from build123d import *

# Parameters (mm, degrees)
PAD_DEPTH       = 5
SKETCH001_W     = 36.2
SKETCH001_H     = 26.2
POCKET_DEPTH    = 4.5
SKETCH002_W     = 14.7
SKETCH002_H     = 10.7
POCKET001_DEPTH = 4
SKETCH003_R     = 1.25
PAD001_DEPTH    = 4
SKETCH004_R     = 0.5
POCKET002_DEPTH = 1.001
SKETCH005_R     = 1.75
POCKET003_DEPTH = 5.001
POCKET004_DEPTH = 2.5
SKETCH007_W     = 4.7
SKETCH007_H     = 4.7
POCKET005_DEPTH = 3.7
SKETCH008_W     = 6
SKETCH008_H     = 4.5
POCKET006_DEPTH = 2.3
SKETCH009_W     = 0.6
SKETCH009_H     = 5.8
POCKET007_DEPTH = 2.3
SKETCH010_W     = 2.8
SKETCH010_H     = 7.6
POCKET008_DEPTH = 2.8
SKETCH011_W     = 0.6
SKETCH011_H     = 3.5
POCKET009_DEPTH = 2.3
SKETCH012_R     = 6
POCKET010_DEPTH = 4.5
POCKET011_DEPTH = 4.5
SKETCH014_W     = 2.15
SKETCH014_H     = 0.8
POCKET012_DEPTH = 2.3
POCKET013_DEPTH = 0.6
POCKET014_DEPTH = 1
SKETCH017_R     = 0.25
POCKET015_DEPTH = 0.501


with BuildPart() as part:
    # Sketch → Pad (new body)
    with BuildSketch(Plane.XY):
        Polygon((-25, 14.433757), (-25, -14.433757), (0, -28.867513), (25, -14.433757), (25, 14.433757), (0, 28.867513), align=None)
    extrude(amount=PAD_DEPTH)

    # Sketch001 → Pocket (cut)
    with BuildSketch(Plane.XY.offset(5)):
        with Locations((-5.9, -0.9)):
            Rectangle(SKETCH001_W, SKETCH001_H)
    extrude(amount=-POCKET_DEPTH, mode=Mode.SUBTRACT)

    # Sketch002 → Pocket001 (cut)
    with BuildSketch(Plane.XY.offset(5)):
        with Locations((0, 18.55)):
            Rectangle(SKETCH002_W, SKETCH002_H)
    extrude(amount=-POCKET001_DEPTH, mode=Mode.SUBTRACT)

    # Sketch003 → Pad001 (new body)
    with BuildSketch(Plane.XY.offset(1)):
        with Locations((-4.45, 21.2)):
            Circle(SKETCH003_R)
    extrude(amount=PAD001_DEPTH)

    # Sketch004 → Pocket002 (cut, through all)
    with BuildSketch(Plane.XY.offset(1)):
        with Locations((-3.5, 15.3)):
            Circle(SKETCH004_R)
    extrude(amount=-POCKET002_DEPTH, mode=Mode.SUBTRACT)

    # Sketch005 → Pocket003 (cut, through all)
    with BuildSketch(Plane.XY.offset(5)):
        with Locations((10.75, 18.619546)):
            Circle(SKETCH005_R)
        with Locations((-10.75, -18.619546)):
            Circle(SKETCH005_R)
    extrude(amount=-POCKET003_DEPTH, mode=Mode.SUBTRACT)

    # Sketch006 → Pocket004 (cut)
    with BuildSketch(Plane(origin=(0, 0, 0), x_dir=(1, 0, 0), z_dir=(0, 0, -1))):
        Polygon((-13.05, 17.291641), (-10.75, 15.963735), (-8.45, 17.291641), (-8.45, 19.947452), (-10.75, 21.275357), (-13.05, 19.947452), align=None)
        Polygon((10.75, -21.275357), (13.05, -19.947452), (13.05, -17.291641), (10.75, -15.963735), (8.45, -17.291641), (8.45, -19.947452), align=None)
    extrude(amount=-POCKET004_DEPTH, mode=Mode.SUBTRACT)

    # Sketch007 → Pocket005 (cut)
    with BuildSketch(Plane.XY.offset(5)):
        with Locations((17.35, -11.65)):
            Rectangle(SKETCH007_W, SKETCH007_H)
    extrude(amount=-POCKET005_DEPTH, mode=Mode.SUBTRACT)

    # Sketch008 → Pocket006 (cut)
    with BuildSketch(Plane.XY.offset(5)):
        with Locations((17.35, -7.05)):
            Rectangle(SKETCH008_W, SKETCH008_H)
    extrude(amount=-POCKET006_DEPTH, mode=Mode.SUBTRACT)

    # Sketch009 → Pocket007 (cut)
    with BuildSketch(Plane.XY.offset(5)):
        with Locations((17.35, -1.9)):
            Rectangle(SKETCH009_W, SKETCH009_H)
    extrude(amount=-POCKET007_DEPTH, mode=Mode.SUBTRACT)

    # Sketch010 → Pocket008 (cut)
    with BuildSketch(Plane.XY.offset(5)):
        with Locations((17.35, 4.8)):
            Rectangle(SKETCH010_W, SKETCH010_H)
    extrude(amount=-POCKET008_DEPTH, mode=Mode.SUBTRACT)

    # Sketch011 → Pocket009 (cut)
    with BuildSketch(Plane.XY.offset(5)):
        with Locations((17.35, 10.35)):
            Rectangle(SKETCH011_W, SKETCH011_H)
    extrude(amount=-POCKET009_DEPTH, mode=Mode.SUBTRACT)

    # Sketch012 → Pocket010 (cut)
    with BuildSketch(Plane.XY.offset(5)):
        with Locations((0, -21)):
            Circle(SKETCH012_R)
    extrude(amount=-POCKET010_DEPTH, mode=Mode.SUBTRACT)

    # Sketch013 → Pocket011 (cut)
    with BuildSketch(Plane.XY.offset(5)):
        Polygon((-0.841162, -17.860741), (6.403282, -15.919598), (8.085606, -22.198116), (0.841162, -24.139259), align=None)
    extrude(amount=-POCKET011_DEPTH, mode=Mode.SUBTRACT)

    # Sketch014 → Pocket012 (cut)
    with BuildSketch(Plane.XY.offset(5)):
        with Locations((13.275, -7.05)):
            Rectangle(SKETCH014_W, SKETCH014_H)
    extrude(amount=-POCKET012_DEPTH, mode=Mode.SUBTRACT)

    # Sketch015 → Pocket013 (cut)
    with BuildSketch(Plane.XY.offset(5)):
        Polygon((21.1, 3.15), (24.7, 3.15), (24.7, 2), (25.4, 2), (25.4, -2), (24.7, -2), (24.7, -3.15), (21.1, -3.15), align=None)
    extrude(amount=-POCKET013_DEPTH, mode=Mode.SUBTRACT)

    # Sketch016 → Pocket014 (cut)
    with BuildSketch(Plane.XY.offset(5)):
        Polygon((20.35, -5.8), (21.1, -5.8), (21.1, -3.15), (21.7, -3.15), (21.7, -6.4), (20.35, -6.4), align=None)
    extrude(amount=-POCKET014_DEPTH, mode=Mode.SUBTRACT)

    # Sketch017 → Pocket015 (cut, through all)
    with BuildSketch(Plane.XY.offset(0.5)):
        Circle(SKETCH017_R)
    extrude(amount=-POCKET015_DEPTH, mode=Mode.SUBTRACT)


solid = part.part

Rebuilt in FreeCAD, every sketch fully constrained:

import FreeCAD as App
import Part
import Sketcher

V = App.Vector
Q = App.Units.Quantity


def add_polygon(sketch, points):
    """Adds a closed chain of lines whose ends are joined by coincident constraints."""
    first, n = sketch.GeometryCount, len(points)
    for a, b in zip(points, points[1:] + points[:1]):
        sketch.addGeometry(Part.LineSegment(App.Vector(*a, 0), App.Vector(*b, 0)), False)
    for i in range(n):
        sketch.addConstraint(Sketcher.Constraint("Coincident", first + i, 2, first + (i + 1) % n, 1))

doc = App.newDocument("Part")
body = doc.addObject("PartDesign::Body", "Body")

# Sketch on XY plane
sketch1 = body.newObject("Sketcher::SketchObject", "Sketch")
sketch1.AttachmentSupport = (doc.getObject("XY_Plane"), [""])
sketch1.MapMode = "FlatFace"
add_polygon(sketch1, [(-25, 14), (-25, -14), (0, -29), (25, -14), (25, 14), (0, 29)])  # lines 0-5
sketch1.addConstraint([
    Sketcher.Constraint("Vertical", 0),
    Sketcher.Constraint("Vertical", 3),
    Sketcher.Constraint("Symmetric", 0, 2, 3, 2, -1, 1),
    Sketcher.Constraint("Symmetric", 1, 2, 4, 2, -1, 1),
    Sketcher.Constraint("PointOnObject", 1, 2, -2),
    Sketcher.Constraint("Parallel", 2, 5),
    Sketcher.Constraint("Horizontal", 0, 2, 2, 2),
    Sketcher.Constraint("Angle", 1, Q("-29.999999 deg")),
    Sketcher.Constraint("DistanceX", 0, 2, -1, 1, Q("25 mm")),
    Sketcher.Constraint("DistanceY", 0, 2, 0, 1, Q("28.867514 mm")),
])
pad1 = body.newObject("PartDesign::Pad", "Pad")
pad1.Profile = sketch1
pad1.Length = 5

# Sketch on XY plane
sketch2 = body.newObject("Sketcher::SketchObject", "Sketch001")
sketch2.AttachmentSupport = (doc.getObject("XY_Plane"), [""])
sketch2.MapMode = "FlatFace"
sketch2.AttachmentOffset = App.Placement(V(0, 0, 5), App.Rotation())
add_polygon(sketch2, [(-24, 12), (-24, -14), (12, -14), (12, 12)])  # lines 0-3
sketch2.addConstraint([
    Sketcher.Constraint("Vertical", 0),
    Sketcher.Constraint("Horizontal", 1),
    Sketcher.Constraint("Vertical", 2),
    Sketcher.Constraint("Horizontal", 3),
    Sketcher.Constraint("DistanceX", 1, 1, 1, 2, Q("36.2 mm")),
    Sketcher.Constraint("DistanceY", 0, 2, 0, 1, Q("26.2 mm")),
    Sketcher.Constraint("DistanceX", 0, 2, -1, 1, Q("24 mm")),
    Sketcher.Constraint("DistanceY", 0, 2, -1, 1, Q("14 mm")),
])
pocket1 = body.newObject("PartDesign::Pocket", "Pocket")
pocket1.Profile = sketch2
pocket1.Length = 4.5

# Sketch on XY plane
sketch3 = body.newObject("Sketcher::SketchObject", "Sketch002")
sketch3.AttachmentSupport = (doc.getObject("XY_Plane"), [""])
sketch3.MapMode = "FlatFace"
sketch3.AttachmentOffset = App.Placement(V(0, 0, 5), App.Rotation())
add_polygon(sketch3, [(-7, 24), (-7, 13), (7, 13), (7, 24)])  # lines 0-3
sketch3.addConstraint([
    Sketcher.Constraint("Vertical", 0),
    Sketcher.Constraint("Horizontal", 1),
    Sketcher.Constraint("Vertical", 2),
    Sketcher.Constraint("Horizontal", 3),
    Sketcher.Constraint("DistanceX", 1, 1, 1, 2, Q("14.7 mm")),
    Sketcher.Constraint("DistanceY", 0, 2, 0, 1, Q("10.7 mm")),
    Sketcher.Constraint("DistanceY", -1, 1, 0, 2, Q("13.2 mm")),
    Sketcher.Constraint("DistanceX", 0, 2, -1, 1, Q("7.35 mm")),
])
pocket2 = body.newObject("PartDesign::Pocket", "Pocket001")
pocket2.Profile = sketch3
pocket2.Length = 4

# Sketch on XY plane
sketch4 = body.newObject("Sketcher::SketchObject", "Sketch003")
sketch4.AttachmentSupport = (doc.getObject("XY_Plane"), [""])
sketch4.MapMode = "FlatFace"
sketch4.AttachmentOffset = App.Placement(V(0, 0, 1), App.Rotation())
sketch4.addGeometry(Part.Circle(V(-4.5, 21.2, 0), V(0, 0, 1), 1.2), False)
sketch4.addConstraint([
    Sketcher.Constraint("Diameter", 0, Q("2.5 mm")),
    Sketcher.Constraint("DistanceY", -1, 1, 0, 3, Q("21.2 mm")),
    Sketcher.Constraint("DistanceX", 0, 3, -1, 1, Q("4.45 mm")),
])
pad2 = body.newObject("PartDesign::Pad", "Pad001")
pad2.Profile = sketch4
pad2.Length = 4

# Sketch on XY plane
sketch5 = body.newObject("Sketcher::SketchObject", "Sketch004")
sketch5.AttachmentSupport = (doc.getObject("XY_Plane"), [""])
sketch5.MapMode = "FlatFace"
sketch5.AttachmentOffset = App.Placement(V(0, 0, 1), App.Rotation())
sketch5.addGeometry(Part.Circle(V(-3.5, 15.3, 0), V(0, 0, 1), 0.5), False)
sketch5.addConstraint([
    Sketcher.Constraint("Diameter", 0, Q("1 mm")),
    Sketcher.Constraint("DistanceX", 0, 3, -1, 1, Q("3.5 mm")),
    Sketcher.Constraint("DistanceY", -1, 1, 0, 3, Q("15.3 mm")),
])
pocket3 = body.newObject("PartDesign::Pocket", "Pocket002")
pocket3.Profile = sketch5
pocket3.Type = "ThroughAll"

# Sketch on XY plane
sketch6 = body.newObject("Sketcher::SketchObject", "Sketch005")
sketch6.AttachmentSupport = (doc.getObject("XY_Plane"), [""])
sketch6.MapMode = "FlatFace"
sketch6.AttachmentOffset = App.Placement(V(0, 0, 5), App.Rotation())
sketch6.addGeometry([
    Part.Circle(V(10.8, 18.6, 0), V(0, 0, 1), 1.8),
    Part.Circle(V(-10.8, -18.6, 0), V(0, 0, 1), 1.8),
], False)
sketch6.addConstraint([
    Sketcher.Constraint("Equal", 0, 1),
    Sketcher.Constraint("Symmetric", 0, 3, 1, 3, -1, 1),
    Sketcher.Constraint("Diameter", 0, Q("3.5 mm")),
    Sketcher.Constraint("DistanceX", 1, 3, 0, 3, Q("21.5 mm")),
    Sketcher.Constraint("DistanceY", -1, 1, 0, 3, Q("18.619546 mm")),
])
pocket4 = body.newObject("PartDesign::Pocket", "Pocket003")
pocket4.Profile = sketch6
pocket4.Type = "ThroughAll"

# Sketch on XY plane
sketch7 = body.newObject("Sketcher::SketchObject", "Sketch006")
sketch7.AttachmentSupport = (doc.getObject("XY_Plane"), [""])
sketch7.MapMode = "FlatFace"
add_polygon(sketch7, [(-13.1, -17.3), (-10.8, -16), (-8.4, -17.3), (-8.4, -19.9), (-10.8, -21.3), (-13.1, -19.9)])  # lines 0-5
add_polygon(sketch7, [(10.8, 21.3), (13.1, 19.9), (13.1, 17.3), (10.8, 16), (8.4, 17.3), (8.4, 19.9)])  # lines 6-11
sketch7.addConstraint([
    Sketcher.Constraint("Vertical", 2),
    Sketcher.Constraint("Vertical", 5),
    Sketcher.Constraint("Vertical", 7),
    Sketcher.Constraint("Vertical", 10),
    Sketcher.Constraint("Symmetric", 4, 2, 6, 2, -1, 1),
    Sketcher.Constraint("Symmetric", 0, 2, 8, 2, -1, 1),
    Sketcher.Constraint("Symmetric", 1, 2, 9, 2, -1, 1),
    Sketcher.Constraint("Symmetric", 3, 2, 11, 2, -1, 1),
    Sketcher.Constraint("Parallel", 0, 3),
    Sketcher.Constraint("Parallel", 1, 4),
    Sketcher.Constraint("Parallel", 3, 8),
    Sketcher.Constraint("Parallel", 8, 11),
    Sketcher.Constraint("Horizontal", 2, 2, 4, 2),
    Sketcher.Constraint("Horizontal", 1, 2, 5, 2),
    Sketcher.Constraint("Vertical", 0, 2, 3, 2),
    Sketcher.Constraint("Angle", 0, Q("30.000007 deg")),
    Sketcher.Constraint("DistanceX", 0, 2, 1, 2, Q("2.3 mm")),
    Sketcher.Constraint("DistanceX", 1, 2, 6, 2, Q("21.5 mm")),
    Sketcher.Constraint("DistanceY", 2, 2, 2, 1, Q("2.655811 mm")),
    Sketcher.Constraint("DistanceY", 1, 2, -1, 1, Q("17.291641 mm")),
])
pocket5 = body.newObject("PartDesign::Pocket", "Pocket004")
pocket5.Profile = sketch7
pocket5.Length = 2.5
pocket5.Reversed = True

# Sketch on XY plane
sketch8 = body.newObject("Sketcher::SketchObject", "Sketch007")
sketch8.AttachmentSupport = (doc.getObject("XY_Plane"), [""])
sketch8.MapMode = "FlatFace"
sketch8.AttachmentOffset = App.Placement(V(0, 0, 5), App.Rotation())
add_polygon(sketch8, [(15, -9.3), (15, -14), (19.7, -14), (19.7, -9.3)])  # lines 0-3
sketch8.addConstraint([
    Sketcher.Constraint("Vertical", 0),
    Sketcher.Constraint("Horizontal", 1),
    Sketcher.Constraint("Vertical", 2),
    Sketcher.Constraint("Horizontal", 3),
    Sketcher.Constraint("Equal", 3, 0),
    Sketcher.Constraint("DistanceX", 1, 1, 1, 2, Q("4.7 mm")),
    Sketcher.Constraint("DistanceX", -1, 1, 0, 2, Q("15 mm")),
    Sketcher.Constraint("DistanceY", 0, 2, -1, 1, Q("14 mm")),
])
pocket6 = body.newObject("PartDesign::Pocket", "Pocket005")
pocket6.Profile = sketch8
pocket6.Length = 3.7

# Sketch on XY plane
sketch9 = body.newObject("Sketcher::SketchObject", "Sketch008")
sketch9.AttachmentSupport = (doc.getObject("XY_Plane"), [""])
sketch9.MapMode = "FlatFace"
sketch9.AttachmentOffset = App.Placement(V(0, 0, 5), App.Rotation())
add_polygon(sketch9, [(14.3, -4.8), (14.3, -9.3), (20.4, -9.3), (20.4, -4.8)])  # lines 0-3
sketch9.addConstraint([
    Sketcher.Constraint("Vertical", 0),
    Sketcher.Constraint("Horizontal", 1),
    Sketcher.Constraint("Vertical", 2),
    Sketcher.Constraint("Horizontal", 3),
    Sketcher.Constraint("DistanceX", 1, 1, 1, 2, Q("6 mm")),
    Sketcher.Constraint("DistanceY", 0, 2, 0, 1, Q("4.5 mm")),
    Sketcher.Constraint("DistanceY", 0, 2, -1, 1, Q("9.3 mm")),
    Sketcher.Constraint("DistanceX", -1, 1, 0, 2, Q("14.35 mm")),
])
pocket7 = body.newObject("PartDesign::Pocket", "Pocket006")
pocket7.Profile = sketch9
pocket7.Length = 2.3

# Sketch on XY plane
sketch10 = body.newObject("Sketcher::SketchObject", "Sketch009")
sketch10.AttachmentSupport = (doc.getObject("XY_Plane"), [""])
sketch10.MapMode = "FlatFace"
sketch10.AttachmentOffset = App.Placement(V(0, 0, 5), App.Rotation())
add_polygon(sketch10, [(17.1, 1), (17.1, -4.8), (17.6, -4.8), (17.6, 1)])  # lines 0-3
sketch10.addConstraint([
    Sketcher.Constraint("Vertical", 0),
    Sketcher.Constraint("Horizontal", 1),
    Sketcher.Constraint("Vertical", 2),
    Sketcher.Constraint("Horizontal", 3),
    Sketcher.Constraint("DistanceX", 1, 1, 1, 2, Q("0.6 mm")),
    Sketcher.Constraint("DistanceY", 0, 2, 0, 1, Q("5.8 mm")),
    Sketcher.Constraint("DistanceY", -1, 1, 2, 2, Q("1 mm")),
    Sketcher.Constraint("DistanceX", -1, 1, 0, 2, Q("17.05 mm")),
])
pocket8 = body.newObject("PartDesign::Pocket", "Pocket007")
pocket8.Profile = sketch10
pocket8.Length = 2.3

# Sketch on XY plane
sketch11 = body.newObject("Sketcher::SketchObject", "Sketch010")
sketch11.AttachmentSupport = (doc.getObject("XY_Plane"), [""])
sketch11.MapMode = "FlatFace"
sketch11.AttachmentOffset = App.Placement(V(0, 0, 5), App.Rotation())
add_polygon(sketch11, [(15.9, 8.6), (15.9, 1), (18.8, 1), (18.8, 8.6)])  # lines 0-3
sketch11.addConstraint([
    Sketcher.Constraint("Vertical", 0),
    Sketcher.Constraint("Horizontal", 1),
    Sketcher.Constraint("Vertical", 2),
    Sketcher.Constraint("Horizontal", 3),
    Sketcher.Constraint("DistanceX", 1, 1, 1, 2, Q("2.8 mm")),
    Sketcher.Constraint("DistanceY", 0, 2, 0, 1, Q("7.6 mm")),
    Sketcher.Constraint("DistanceY", -1, 1, 0, 2, Q("1 mm")),
    Sketcher.Constraint("DistanceX", -1, 1, 0, 2, Q("15.95 mm")),
])
pocket9 = body.newObject("PartDesign::Pocket", "Pocket008")
pocket9.Profile = sketch11
pocket9.Length = 2.8

# Sketch on XY plane
sketch12 = body.newObject("Sketcher::SketchObject", "Sketch011")
sketch12.AttachmentSupport = (doc.getObject("XY_Plane"), [""])
sketch12.MapMode = "FlatFace"
sketch12.AttachmentOffset = App.Placement(V(0, 0, 5), App.Rotation())
add_polygon(sketch12, [(17.1, 12.1), (17.1, 8.6), (17.6, 8.6), (17.6, 12.1)])  # lines 0-3
sketch12.addConstraint([
    Sketcher.Constraint("Vertical", 0),
    Sketcher.Constraint("Horizontal", 1),
    Sketcher.Constraint("Vertical", 2),
    Sketcher.Constraint("Horizontal", 3),
    Sketcher.Constraint("DistanceX", 1, 1, 1, 2, Q("0.6 mm")),
    Sketcher.Constraint("DistanceY", 0, 2, 0, 1, Q("3.5 mm")),
    Sketcher.Constraint("DistanceY", -1, 1, 0, 2, Q("8.6 mm")),
    Sketcher.Constraint("DistanceX", -1, 1, 0, 2, Q("17.05 mm")),
])
pocket10 = body.newObject("PartDesign::Pocket", "Pocket009")
pocket10.Profile = sketch12
pocket10.Length = 2.3

# Sketch on XY plane
sketch13 = body.newObject("Sketcher::SketchObject", "Sketch012")
sketch13.AttachmentSupport = (doc.getObject("XY_Plane"), [""])
sketch13.MapMode = "FlatFace"
sketch13.AttachmentOffset = App.Placement(V(0, 0, 5), App.Rotation())
sketch13.addGeometry(Part.Circle(V(0, -21, 0), V(0, 0, 1), 6), False)
sketch13.addConstraint([
    Sketcher.Constraint("PointOnObject", 0, 3, -2),
    Sketcher.Constraint("Diameter", 0, Q("12 mm")),
    Sketcher.Constraint("DistanceY", 0, 3, -1, 1, Q("21 mm")),
])
pocket11 = body.newObject("PartDesign::Pocket", "Pocket010")
pocket11.Profile = sketch13
pocket11.Length = 4.5

# Sketch on XY plane
sketch14 = body.newObject("Sketcher::SketchObject", "Sketch013")
sketch14.AttachmentSupport = (doc.getObject("XY_Plane"), [""])
sketch14.MapMode = "FlatFace"
sketch14.AttachmentOffset = App.Placement(V(0, 0, 5), App.Rotation())
add_polygon(sketch14, [(6, -16), (-1, -18), (1, -24), (8, -22)])  # lines 0-3
sketch14.addConstraint([
    Sketcher.Constraint("Perpendicular", 0, 1),
    Sketcher.Constraint("Perpendicular", 1, 2),
    Sketcher.Constraint("Perpendicular", 2, 3),
    Sketcher.Constraint("Angle", 0, Q("-164.999999 deg")),
    Sketcher.Constraint("Distance", 0, Q("7.5 mm")),
    Sketcher.Constraint("Distance", 1, Q("6.5 mm")),
    Sketcher.Constraint("DistanceX", 0, 2, -1, 1, Q("0.841162 mm")),
    Sketcher.Constraint("DistanceY", 0, 2, -1, 1, Q("17.860741 mm")),
])
pocket12 = body.newObject("PartDesign::Pocket", "Pocket011")
pocket12.Profile = sketch14
pocket12.Length = 4.5

# Sketch on XY plane
sketch15 = body.newObject("Sketcher::SketchObject", "Sketch014")
sketch15.AttachmentSupport = (doc.getObject("XY_Plane"), [""])
sketch15.MapMode = "FlatFace"
sketch15.AttachmentOffset = App.Placement(V(0, 0, 5), App.Rotation())
add_polygon(sketch15, [(12.2, -6.7), (12.2, -7.5), (14.3, -7.5), (14.3, -6.7)])  # lines 0-3
sketch15.addConstraint([
    Sketcher.Constraint("Vertical", 0),
    Sketcher.Constraint("Horizontal", 1),
    Sketcher.Constraint("Vertical", 2),
    Sketcher.Constraint("Horizontal", 3),
    Sketcher.Constraint("DistanceY", 0, 2, 0, 1, Q("0.8 mm")),
    Sketcher.Constraint("DistanceX", 1, 1, 1, 2, Q("2.15 mm")),
    Sketcher.Constraint("DistanceX", -1, 1, 0, 2, Q("12.2 mm")),
    Sketcher.Constraint("DistanceY", 0, 2, -1, 1, Q("7.45 mm")),
])
pocket13 = body.newObject("PartDesign::Pocket", "Pocket012")
pocket13.Profile = sketch15
pocket13.Length = 2.3

# Sketch on XY plane
sketch16 = body.newObject("Sketcher::SketchObject", "Sketch015")
sketch16.AttachmentSupport = (doc.getObject("XY_Plane"), [""])
sketch16.MapMode = "FlatFace"
sketch16.AttachmentOffset = App.Placement(V(0, 0, 5), App.Rotation())
add_polygon(sketch16, [(24.7, 3.1), (21.1, 3.1), (21.1, -3.1), (24.7, -3.1), (24.7, -2), (25.4, -2), (25.4, 2), (24.7, 2)])  # lines 0-7
sketch16.addConstraint([
    Sketcher.Constraint("Horizontal", 0),
    Sketcher.Constraint("Vertical", 1),
    Sketcher.Constraint("Horizontal", 2),
    Sketcher.Constraint("Vertical", 3),
    Sketcher.Constraint("Horizontal", 4),
    Sketcher.Constraint("Vertical", 5),
    Sketcher.Constraint("Horizontal", 6),
    Sketcher.Constraint("Vertical", 7),
    Sketcher.Constraint("Symmetric", 3, 2, 6, 2, -1),
    Sketcher.Constraint("Equal", 3, 7),
    Sketcher.Constraint("DistanceY", 5, 1, 5, 2, Q("4 mm")),
    Sketcher.Constraint("DistanceX", 0, 2, 0, 1, Q("3.6 mm")),
    Sketcher.Constraint("DistanceX", 4, 1, 4, 2, Q("0.7 mm")),
    Sketcher.Constraint("DistanceY", 1, 2, 1, 1, Q("6.3 mm")),
    Sketcher.Constraint("DistanceX", -1, 1, 0, 2, Q("21.1 mm")),
])
pocket14 = body.newObject("PartDesign::Pocket", "Pocket013")
pocket14.Profile = sketch16
pocket14.Length = 0.6

# Sketch on XY plane
sketch17 = body.newObject("Sketcher::SketchObject", "Sketch016")
sketch17.AttachmentSupport = (doc.getObject("XY_Plane"), [""])
sketch17.MapMode = "FlatFace"
sketch17.AttachmentOffset = App.Placement(V(0, 0, 5), App.Rotation())
add_polygon(sketch17, [(21.1, -5.8), (20.4, -5.8), (20.4, -6.4), (21.7, -6.4), (21.7, -3.1), (21.1, -3.1)])  # lines 0-5
sketch17.addConstraint([
    Sketcher.Constraint("Horizontal", 0),
    Sketcher.Constraint("Vertical", 1),
    Sketcher.Constraint("Horizontal", 2),
    Sketcher.Constraint("Vertical", 3),
    Sketcher.Constraint("Horizontal", 4),
    Sketcher.Constraint("Vertical", 5),
    Sketcher.Constraint("Equal", 4, 1),
    Sketcher.Constraint("DistanceX", 4, 2, 4, 1, Q("0.6 mm")),
    Sketcher.Constraint("DistanceX", 0, 2, 0, 1, Q("0.75 mm")),
    Sketcher.Constraint("DistanceY", 3, 1, 3, 2, Q("3.25 mm")),
    Sketcher.Constraint("DistanceY", 0, 2, -1, 1, Q("5.8 mm")),
    Sketcher.Constraint("DistanceX", -1, 1, 2, 2, Q("21.7 mm")),
])
pocket15 = body.newObject("PartDesign::Pocket", "Pocket014")
pocket15.Profile = sketch17
pocket15.Length = 1

# Sketch on XY plane
sketch18 = body.newObject("Sketcher::SketchObject", "Sketch017")
sketch18.AttachmentSupport = (doc.getObject("XY_Plane"), [""])
sketch18.MapMode = "FlatFace"
sketch18.AttachmentOffset = App.Placement(V(0, 0, 0.5), App.Rotation())
sketch18.addGeometry(Part.Circle(V(0, 0, 0), V(0, 0, 1), 0.25), False)
sketch18.addConstraint([
    Sketcher.Constraint("Coincident", 0, 3, -1, 1),
    Sketcher.Constraint("Diameter", 0, Q("0.5 mm")),
])
pocket16 = body.newObject("PartDesign::Pocket", "Pocket015")
pocket16.Profile = sketch18
pocket16.Type = "ThroughAll"

doc.recompute()
